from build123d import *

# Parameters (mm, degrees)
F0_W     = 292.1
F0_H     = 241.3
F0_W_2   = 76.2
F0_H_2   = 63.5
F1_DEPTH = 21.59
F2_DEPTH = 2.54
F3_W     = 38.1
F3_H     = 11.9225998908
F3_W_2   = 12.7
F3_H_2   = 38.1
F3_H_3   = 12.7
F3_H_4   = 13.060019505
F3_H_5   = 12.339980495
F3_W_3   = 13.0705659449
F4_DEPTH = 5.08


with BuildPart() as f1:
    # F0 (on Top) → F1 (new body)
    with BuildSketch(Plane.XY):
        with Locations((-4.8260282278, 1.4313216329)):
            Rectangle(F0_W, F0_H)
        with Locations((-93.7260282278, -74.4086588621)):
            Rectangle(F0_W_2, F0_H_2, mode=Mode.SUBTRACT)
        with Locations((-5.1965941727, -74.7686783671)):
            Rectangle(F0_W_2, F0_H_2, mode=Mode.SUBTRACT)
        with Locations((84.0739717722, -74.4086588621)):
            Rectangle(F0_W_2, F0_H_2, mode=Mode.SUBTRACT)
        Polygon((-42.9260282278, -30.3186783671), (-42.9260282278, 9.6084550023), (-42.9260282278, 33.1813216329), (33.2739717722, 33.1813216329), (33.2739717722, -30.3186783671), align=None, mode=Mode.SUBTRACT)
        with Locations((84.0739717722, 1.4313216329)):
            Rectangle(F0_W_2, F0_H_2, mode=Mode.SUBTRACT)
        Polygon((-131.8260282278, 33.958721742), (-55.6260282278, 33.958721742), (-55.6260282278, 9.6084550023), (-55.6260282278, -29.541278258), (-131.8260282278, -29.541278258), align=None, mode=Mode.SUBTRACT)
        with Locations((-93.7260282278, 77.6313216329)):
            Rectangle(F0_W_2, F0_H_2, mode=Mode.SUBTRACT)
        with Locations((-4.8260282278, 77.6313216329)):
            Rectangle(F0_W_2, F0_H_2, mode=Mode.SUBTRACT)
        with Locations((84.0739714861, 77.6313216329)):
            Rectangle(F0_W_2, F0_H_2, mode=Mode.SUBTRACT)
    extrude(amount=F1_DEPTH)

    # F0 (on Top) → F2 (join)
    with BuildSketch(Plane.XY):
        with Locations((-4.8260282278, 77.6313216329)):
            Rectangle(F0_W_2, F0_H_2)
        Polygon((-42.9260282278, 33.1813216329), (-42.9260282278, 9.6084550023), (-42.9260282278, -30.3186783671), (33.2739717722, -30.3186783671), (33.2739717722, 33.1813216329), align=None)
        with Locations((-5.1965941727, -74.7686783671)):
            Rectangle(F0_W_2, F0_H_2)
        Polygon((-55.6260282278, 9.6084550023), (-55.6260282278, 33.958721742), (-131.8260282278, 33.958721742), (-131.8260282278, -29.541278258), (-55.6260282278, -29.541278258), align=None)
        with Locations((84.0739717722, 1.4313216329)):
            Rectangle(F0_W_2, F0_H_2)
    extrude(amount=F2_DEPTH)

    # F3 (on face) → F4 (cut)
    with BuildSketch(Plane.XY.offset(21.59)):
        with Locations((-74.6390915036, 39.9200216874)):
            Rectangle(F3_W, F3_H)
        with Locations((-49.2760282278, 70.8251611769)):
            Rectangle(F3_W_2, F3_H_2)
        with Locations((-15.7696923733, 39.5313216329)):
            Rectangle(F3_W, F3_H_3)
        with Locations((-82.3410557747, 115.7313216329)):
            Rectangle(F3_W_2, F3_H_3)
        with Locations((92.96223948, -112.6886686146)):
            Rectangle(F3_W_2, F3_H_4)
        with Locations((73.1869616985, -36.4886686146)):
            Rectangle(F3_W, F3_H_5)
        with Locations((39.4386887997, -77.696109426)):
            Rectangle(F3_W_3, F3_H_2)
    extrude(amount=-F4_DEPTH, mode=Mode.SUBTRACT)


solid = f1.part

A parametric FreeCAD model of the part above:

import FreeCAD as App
import Part
import Sketcher
Q = App.Units.Quantity

doc = App.newDocument("Part")
body = doc.addObject("PartDesign::Body", "Body")

# Sketch on XY plane
sketch1 = body.newObject("Sketcher::SketchObject", "Sketch")
sketch1.AttachmentSupport = (doc.getObject("XY_Plane"), [""])
sketch1.MapMode = "FlatFace"
sketch1.addGeometry([
    Part.LineSegment(App.Vector(-151, 122, 0), App.Vector(-151, -119, 0)),  # 0
    Part.LineSegment(App.Vector(-151, -119, 0), App.Vector(141, -119, 0)),  # 1
    Part.LineSegment(App.Vector(141, -119, 0), App.Vector(141, 122, 0)),  # 2
    Part.LineSegment(App.Vector(141, 122, 0), App.Vector(-151, 122, 0)),  # 3
    Part.LineSegment(App.Vector(-56, -106, 0), App.Vector(-132, -106, 0)),  # 4
    Part.LineSegment(App.Vector(-132, -106, 0), App.Vector(-132, -43, 0)),  # 5
    Part.LineSegment(App.Vector(-132, -43, 0), App.Vector(-56, -43, 0)),  # 6
    Part.LineSegment(App.Vector(-56, -43, 0), App.Vector(-56, -106, 0)),  # 7
    Part.LineSegment(App.Vector(33, -107, 0), App.Vector(-43, -107, 0)),  # 8
    Part.LineSegment(App.Vector(-43, -107, 0), App.Vector(-43, -43, 0)),  # 9
    Part.LineSegment(App.Vector(-43, -43, 0), App.Vector(33, -43, 0)),  # 10
    Part.LineSegment(App.Vector(33, -43, 0), App.Vector(33, -107, 0)),  # 11
    Part.LineSegment(App.Vector(122, -106, 0), App.Vector(46, -106, 0)),  # 12
    Part.LineSegment(App.Vector(46, -106, 0), App.Vector(46, -43, 0)),  # 13
    Part.LineSegment(App.Vector(46, -43, 0), App.Vector(122, -43, 0)),  # 14
    Part.LineSegment(App.Vector(122, -43, 0), App.Vector(122, -106, 0)),  # 15
    Part.LineSegment(App.Vector(-132, -30, 0), App.Vector(-132, 34, 0)),  # 16
    Part.LineSegment(App.Vector(-132, 34, 0), App.Vector(-56, 34, 0)),  # 17
    Part.LineSegment(App.Vector(-56, 34, 0), App.Vector(-56, -30, 0)),  # 18
    Part.LineSegment(App.Vector(-56, -30, 0), App.Vector(-132, -30, 0)),  # 19
    Part.LineSegment(App.Vector(-56, 46, 0), App.Vector(-132, 46, 0)),  # 20
    Part.LineSegment(App.Vector(-132, 46, 0), App.Vector(-132, 109, 0)),  # 21
    Part.LineSegment(App.Vector(-132, 109, 0), App.Vector(-56, 109, 0)),  # 22
    Part.LineSegment(App.Vector(-56, 109, 0), App.Vector(-56, 46, 0)),  # 23
    Part.LineSegment(App.Vector(33, -30, 0), App.Vector(-43, -30, 0)),  # 24
    Part.LineSegment(App.Vector(-43, -30, 0), App.Vector(-43, 33, 0)),  # 25
    Part.LineSegment(App.Vector(-43, 33, 0), App.Vector(33, 33, 0)),  # 26
    Part.LineSegment(App.Vector(33, 33, 0), App.Vector(33, -30, 0)),  # 27
    Part.LineSegment(App.Vector(122, -30, 0), App.Vector(46, -30, 0)),  # 28
    Part.LineSegment(App.Vector(46, -30, 0), App.Vector(46, 33, 0)),  # 29
    Part.LineSegment(App.Vector(46, 33, 0), App.Vector(122, 33, 0)),  # 30
    Part.LineSegment(App.Vector(122, 33, 0), App.Vector(122, -30, 0)),  # 31
    Part.LineSegment(App.Vector(33, 46, 0), App.Vector(-43, 46, 0)),  # 32
    Part.LineSegment(App.Vector(-43, 46, 0), App.Vector(-43, 109, 0)),  # 33
    Part.LineSegment(App.Vector(-43, 109, 0), App.Vector(33, 109, 0)),  # 34
    Part.LineSegment(App.Vector(33, 109, 0), App.Vector(33, 46, 0)),  # 35
    Part.LineSegment(App.Vector(122, 46, 0), App.Vector(46, 46, 0)),  # 36
    Part.LineSegment(App.Vector(46, 46, 0), App.Vector(46, 109, 0)),  # 37
    Part.LineSegment(App.Vector(46, 109, 0), App.Vector(122, 109, 0)),  # 38
    Part.LineSegment(App.Vector(122, 109, 0), App.Vector(122, 46, 0)),  # 39
], False)
sketch1.addConstraint([
    Sketcher.Constraint("Coincident", 0, 2, 1, 1),
    Sketcher.Constraint("Coincident", 1, 2, 2, 1),
    Sketcher.Constraint("Coincident", 2, 2, 3, 1),
    Sketcher.Constraint("Coincident", 3, 2, 0, 1),
    Sketcher.Constraint("Coincident", 4, 2, 5, 1),
    Sketcher.Constraint("Coincident", 5, 2, 6, 1),
    Sketcher.Constraint("Coincident", 6, 2, 7, 1),
    Sketcher.Constraint("Coincident", 7, 2, 4, 1),
    Sketcher.Constraint("Coincident", 8, 2, 9, 1),
    Sketcher.Constraint("Coincident", 9, 2, 10, 1),
    Sketcher.Constraint("Coincident", 10, 2, 11, 1),
    Sketcher.Constraint("Coincident", 11, 2, 8, 1),
    Sketcher.Constraint("Coincident", 12, 2, 13, 1),
    Sketcher.Constraint("Coincident", 13, 2, 14, 1),
    Sketcher.Constraint("Coincident", 14, 2, 15, 1),
    Sketcher.Constraint("Coincident", 15, 2, 12, 1),
    Sketcher.Constraint("Coincident", 16, 2, 17, 1),
    Sketcher.Constraint("Coincident", 17, 2, 18, 1),
    Sketcher.Constraint("Coincident", 18, 2, 19, 1),
    Sketcher.Constraint("Coincident", 19, 2, 16, 1),
    Sketcher.Constraint("Coincident", 20, 2, 21, 1),
    Sketcher.Constraint("Coincident", 21, 2, 22, 1),
    Sketcher.Constraint("Coincident", 22, 2, 23, 1),
    Sketcher.Constraint("Coincident", 23, 2, 20, 1),
    Sketcher.Constraint("Coincident", 24, 2, 25, 1),
    Sketcher.Constraint("Coincident", 25, 2, 26, 1),
    Sketcher.Constraint("Coincident", 26, 2, 27, 1),
    Sketcher.Constraint("Coincident", 27, 2, 24, 1),
    Sketcher.Constraint("Coincident", 28, 2, 29, 1),
    Sketcher.Constraint("Coincident", 29, 2, 30, 1),
    Sketcher.Constraint("Coincident", 30, 2, 31, 1),
    Sketcher.Constraint("Coincident", 31, 2, 28, 1),
    Sketcher.Constraint("Coincident", 32, 2, 33, 1),
    Sketcher.Constraint("Coincident", 33, 2, 34, 1),
    Sketcher.Constraint("Coincident", 34, 2, 35, 1),
    Sketcher.Constraint("Coincident", 35, 2, 32, 1),
    Sketcher.Constraint("Coincident", 36, 2, 37, 1),
    Sketcher.Constraint("Coincident", 37, 2, 38, 1),
    Sketcher.Constraint("Coincident", 38, 2, 39, 1),
    Sketcher.Constraint("Coincident", 39, 2, 36, 1),
    Sketcher.Constraint("Vertical", 0),
    Sketcher.Constraint("Horizontal", 1),
    Sketcher.Constraint("Vertical", 2),
    Sketcher.Constraint("Horizontal", 3),
    Sketcher.Constraint("Horizontal", 4),
    Sketcher.Constraint("Vertical", 5),
    Sketcher.Constraint("Horizontal", 6),
    Sketcher.Constraint("Vertical", 7),
    Sketcher.Constraint("Horizontal", 8),
    Sketcher.Constraint("Vertical", 9),
    Sketcher.Constraint("Horizontal", 10),
    Sketcher.Constraint("Vertical", 11),
    Sketcher.Constraint("Horizontal", 12),
    Sketcher.Constraint("Vertical", 13),
    Sketcher.Constraint("Horizontal", 14),
    Sketcher.Constraint("Vertical", 15),
    Sketcher.Constraint("Vertical", 16),
    Sketcher.Constraint("Horizontal", 17),
    Sketcher.Constraint("Vertical", 18),
    Sketcher.Constraint("Horizontal", 19),
    Sketcher.Constraint("Horizontal", 20),
    Sketcher.Constraint("Vertical", 21),
    Sketcher.Constraint("Horizontal", 22),
    Sketcher.Constraint("Vertical", 23),
    Sketcher.Constraint("Horizontal", 24),
    Sketcher.Constraint("Vertical", 25),
    Sketcher.Constraint("Horizontal", 26),
    Sketcher.Constraint("Vertical", 27),
    Sketcher.Constraint("Horizontal", 28),
    Sketcher.Constraint("Vertical", 29),
    Sketcher.Constraint("Horizontal", 30),
    Sketcher.Constraint("Vertical", 31),
    Sketcher.Constraint("Horizontal", 32),
    Sketcher.Constraint("Vertical", 33),
    Sketcher.Constraint("Horizontal", 34),
    Sketcher.Constraint("Vertical", 35),
    Sketcher.Constraint("Horizontal", 36),
    Sketcher.Constraint("Vertical", 37),
    Sketcher.Constraint("Horizontal", 38),
    Sketcher.Constraint("Vertical", 39),
    Sketcher.Constraint("Horizontal", 7, 2, 12, 2),
    Sketcher.Constraint("Horizontal", 6, 2, 13, 2),
    Sketcher.Constraint("Horizontal", 27, 2, 28, 2),
    Sketcher.Constraint("Horizontal", 26, 2, 29, 2),
    Sketcher.Constraint("Horizontal", 23, 2, 32, 2),
    Sketcher.Constraint("Horizontal", 22, 2, 33, 2),
    Sketcher.Constraint("Horizontal", 35, 2, 36, 2),
    Sketcher.Constraint("Horizontal", 34, 2, 37, 2),
    Sketcher.Constraint("Vertical", 5, 2, 16, 2),
    Sketcher.Constraint("Vertical", 7, 2, 17, 2),
    Sketcher.Constraint("Vertical", 19, 2, 20, 2),
    Sketcher.Constraint("Vertical", 18, 2, 22, 2),
    Sketcher.Constraint("Vertical", 13, 2, 28, 2),
    Sketcher.Constraint("Vertical", 15, 2, 30, 2),
    Sketcher.Constraint("Vertical", 25, 2, 32, 2),
    Sketcher.Constraint("Vertical", 27, 2, 34, 2),
    Sketcher.Constraint("Vertical", 29, 2, 36, 2),
    Sketcher.Constraint("Vertical", 31, 2, 38, 2),
    Sketcher.Constraint("Equal", 6, 8),
    Sketcher.Constraint("Equal", 10, 12),
    Sketcher.Constraint("Equal", 22, 24),
    Sketcher.Constraint("Equal", 7, 9),
    Sketcher.Constraint("Equal", 15, 16),
    Sketcher.Constraint("Equal", 18, 21),
    Sketcher.Constraint("Equal", 23, 25),
    Sketcher.Constraint("DistanceX", 4, 2, 4, 1, Q("3 in")),
    Sketcher.Constraint("DistanceX", 1, 1, 1, 2, Q("11.5 in")),
    Sketcher.Constraint("DistanceY", 0, 2, 0, 1, Q("9.5 in")),
    Sketcher.Constraint("DistanceY", 5, 1, 5, 2, Q("2.5 in")),
    Sketcher.Constraint("DistanceY", 1, 2, 10, 2, Q("3 in")),
    Sketcher.Constraint("DistanceX", 7, 2, 12, 2, Q("4 in")),
    Sketcher.Constraint("DistanceY", 20, 2, 3, 2, Q("3 in")),
    Sketcher.Constraint("DistanceY", 8, 2, 24, 2, Q("3 in")),
    Sketcher.Constraint("DistanceX", 18, 2, 24, 2, Q("0.5 in")),
    Sketcher.Constraint("DistanceX", 0, 2, 4, 2, Q("0.75 in")),
    Sketcher.Constraint("DistanceY", 16, 2, 3, 2, 88.1226),
    Sketcher.Constraint("DistanceX", 0, 2, -1, 1, 150.876028),
    Sketcher.Constraint("DistanceY", 0, 2, -1, 1, 119.218678),
    Sketcher.Constraint("DistanceY", 4, 2, -1, 1, 106.158659),
    Sketcher.Constraint("DistanceX", 8, 2, -1, 1, 43.296594),
])
pad1 = body.newObject("PartDesign::Pad", "Pad")
pad1.Profile = sketch1
pad1.Length = Q("0.85 in")

# Sketch on XY plane
sketch2 = body.newObject("Sketcher::SketchObject", "Sketch001")
sketch2.AttachmentSupport = (doc.getObject("XY_Plane"), [""])
sketch2.MapMode = "FlatFace"
sketch2.addGeometry([
    Part.LineSegment(App.Vector(-43, 109, 0), App.Vector(-43, 46, 0)),  # 0
    Part.LineSegment(App.Vector(-43, 46, 0), App.Vector(33, 46, 0)),  # 1
    Part.LineSegment(App.Vector(33, 46, 0), App.Vector(33, 109, 0)),  # 2
    Part.LineSegment(App.Vector(33, 109, 0), App.Vector(-43, 109, 0)),  # 3
    Part.LineSegment(App.Vector(-43, 33, 0), App.Vector(-43, -30, 0)),  # 4
    Part.LineSegment(App.Vector(-43, -30, 0), App.Vector(33, -30, 0)),  # 5
    Part.LineSegment(App.Vector(33, -30, 0), App.Vector(33, 33, 0)),  # 6
    Part.LineSegment(App.Vector(33, 33, 0), App.Vector(-43, 33, 0)),  # 7
    Part.LineSegment(App.Vector(-43, -43, 0), App.Vector(-43, -107, 0)),  # 8
    Part.LineSegment(App.Vector(-43, -107, 0), App.Vector(33, -107, 0)),  # 9
    Part.LineSegment(App.Vector(33, -107, 0), App.Vector(33, -43, 0)),  # 10
    Part.LineSegment(App.Vector(33, -43, 0), App.Vector(-43, -43, 0)),  # 11
    Part.LineSegment(App.Vector(-56, 34, 0), App.Vector(-132, 34, 0)),  # 12
    Part.LineSegment(App.Vector(-132, 34, 0), App.Vector(-132, -30, 0)),  # 13
    Part.LineSegment(App.Vector(-132, -30, 0), App.Vector(-56, -30, 0)),  # 14
    Part.LineSegment(App.Vector(-56, -30, 0), App.Vector(-56, 34, 0)),  # 15
    Part.LineSegment(App.Vector(46, 33, 0), App.Vector(46, -30, 0)),  # 16
    Part.LineSegment(App.Vector(46, -30, 0), App.Vector(122, -30, 0)),  # 17
    Part.LineSegment(App.Vector(122, -30, 0), App.Vector(122, 33, 0)),  # 18
    Part.LineSegment(App.Vector(122, 33, 0), App.Vector(46, 33, 0)),  # 19
], False)
sketch2.addConstraint([
    Sketcher.Constraint("Coincident", 0, 2, 1, 1),
    Sketcher.Constraint("Coincident", 1, 2, 2, 1),
    Sketcher.Constraint("Coincident", 2, 2, 3, 1),
    Sketcher.Constraint("Coincident", 3, 2, 0, 1),
    Sketcher.Constraint("Coincident", 4, 2, 5, 1),
    Sketcher.Constraint("Coincident", 5, 2, 6, 1),
    Sketcher.Constraint("Coincident", 6, 2, 7, 1),
    Sketcher.Constraint("Coincident", 7, 2, 4, 1),
    Sketcher.Constraint("Coincident", 8, 2, 9, 1),
    Sketcher.Constraint("Coincident", 9, 2, 10, 1),
    Sketcher.Constraint("Coincident", 10, 2, 11, 1),
    Sketcher.Constraint("Coincident", 11, 2, 8, 1),
    Sketcher.Constraint("Coincident", 12, 2, 13, 1),
    Sketcher.Constraint("Coincident", 13, 2, 14, 1),
    Sketcher.Constraint("Coincident", 14, 2, 15, 1),
    Sketcher.Constraint("Coincident", 15, 2, 12, 1),
    Sketcher.Constraint("Coincident", 16, 2, 17, 1),
    Sketcher.Constraint("Coincident", 17, 2, 18, 1),
    Sketcher.Constraint("Coincident", 18, 2, 19, 1),
    Sketcher.Constraint("Coincident", 19, 2, 16, 1),
    Sketcher.Constraint("Vertical", 0),
    Sketcher.Constraint("Horizontal", 1),
    Sketcher.Constraint("Vertical", 2),
    Sketcher.Constraint("Horizontal", 3),
    Sketcher.Constraint("Vertical", 4),
    Sketcher.Constraint("Horizontal", 5),
    Sketcher.Constraint("Vertical", 6),
    Sketcher.Constraint("Horizontal", 7),
    Sketcher.Constraint("Vertical", 8),
    Sketcher.Constraint("Horizontal", 9),
    Sketcher.Constraint("Vertical", 10),
    Sketcher.Constraint("Horizontal", 11),
    Sketcher.Constraint("Horizontal", 12),
    Sketcher.Constraint("Vertical", 13),
    Sketcher.Constraint("Horizontal", 14),
    Sketcher.Constraint("Vertical", 15),
    Sketcher.Constraint("Vertical", 16),
    Sketcher.Constraint("Horizontal", 17),
    Sketcher.Constraint("Vertical", 18),
    Sketcher.Constraint("Horizontal", 19),
    Sketcher.Constraint("Horizontal", 5, 2, 16, 2),
    Sketcher.Constraint("Horizontal", 7, 2, 18, 2),
    Sketcher.Constraint("Vertical", 3, 2, 4, 2),
    Sketcher.Constraint("Vertical", 2, 2, 5, 2),
    Sketcher.Constraint("Equal", 7, 9),
    Sketcher.Constraint("Equal", 11, 12),
    Sketcher.Constraint("Equal", 14, 17),
    Sketcher.Constraint("Equal", 2, 4),
    Sketcher.Constraint("Equal", 6, 8),
    Sketcher.Constraint("Equal", 10, 13),
    Sketcher.Constraint("DistanceX", 1, 1, 1, 2, Q("3 in")),
    Sketcher.Constraint("DistanceY", 0, 2, 0, 1, Q("2.5 in")),
    Sketcher.Constraint("DistanceY", 4, 2, 0, 2, Q("3 in")),
    Sketcher.Constraint("DistanceY", 8, 2, 4, 2, Q("3 in")),
    Sketcher.Constraint("DistanceX", 12, 2, 7, 2, Q("3.5 in")),
    Sketcher.Constraint("DistanceX", 5, 2, 16, 2, Q("0.5 in")),
    Sketcher.Constraint("DistanceY", 7, 2, 12, 2, 0.7774),
    Sketcher.Constraint("DistanceX", 0, 2, -1, 1, 42.926028),
    Sketcher.Constraint("DistanceY", -1, 1, 0, 2, 45.881322),
    Sketcher.Constraint("DistanceX", 8, 2, -1, 1, 43.296594),
])
pad2 = body.newObject("PartDesign::Pad", "Pad001")
pad2.Profile = sketch2
pad2.Length = Q("0.1 in")

# Sketch on XY plane
sketch3 = body.newObject("Sketcher::SketchObject", "Sketch002")
sketch3.AttachmentSupport = (doc.getObject("XY_Plane"), [""])
sketch3.MapMode = "FlatFace"
sketch3.AttachmentOffset = App.Placement(App.Vector(0, 0, 0.85 * 25.4), App.Rotation())
sketch3.addGeometry([
    Part.LineSegment(App.Vector(-94, 46, 0), App.Vector(-94, 34, 0)),  # 0
    Part.LineSegment(App.Vector(-94, 34, 0), App.Vector(-56, 34, 0)),  # 1
    Part.LineSegment(App.Vector(-56, 34, 0), App.Vector(-56, 46, 0)),  # 2
    Part.LineSegment(App.Vector(-56, 46, 0), App.Vector(-94, 46, 0)),  # 3
    Part.LineSegment(App.Vector(-56, 90, 0), App.Vector(-56, 52, 0)),  # 4
    Part.LineSegment(App.Vector(-56, 52, 0), App.Vector(-43, 52, 0)),  # 5
    Part.LineSegment(App.Vector(-43, 52, 0), App.Vector(-43, 90, 0)),  # 6
    Part.LineSegment(App.Vector(-43, 90, 0), App.Vector(-56, 90, 0)),  # 7
    Part.LineSegment(App.Vector(-35, 46, 0), App.Vector(-35, 33, 0)),  # 8
    Part.LineSegment(App.Vector(-35, 33, 0), App.Vector(3, 33, 0)),  # 9
    Part.LineSegment(App.Vector(3, 33, 0), App.Vector(3, 46, 0)),  # 10
    Part.LineSegment(App.Vector(3, 46, 0), App.Vector(-35, 46, 0)),  # 11
    Part.LineSegment(App.Vector(-89, 122, 0), App.Vector(-89, 109, 0)),  # 12
    Part.LineSegment(App.Vector(-89, 109, 0), App.Vector(-76, 109, 0)),  # 13
    Part.LineSegment(App.Vector(-76, 109, 0), App.Vector(-76, 122, 0)),  # 14
    Part.LineSegment(App.Vector(-76, 122, 0), App.Vector(-89, 122, 0)),  # 15
    Part.LineSegment(App.Vector(87, -106, 0), App.Vector(87, -119, 0)),  # 16
    Part.LineSegment(App.Vector(87, -119, 0), App.Vector(99, -119, 0)),  # 17
    Part.LineSegment(App.Vector(99, -119, 0), App.Vector(99, -106, 0)),  # 18
    Part.LineSegment(App.Vector(99, -106, 0), App.Vector(87, -106, 0)),  # 19
    Part.LineSegment(App.Vector(54, -30, 0), App.Vector(54, -43, 0)),  # 20
    Part.LineSegment(App.Vector(54, -43, 0), App.Vector(92, -43, 0)),  # 21
    Part.LineSegment(App.Vector(92, -43, 0), App.Vector(92, -30, 0)),  # 22
    Part.LineSegment(App.Vector(92, -30, 0), App.Vector(54, -30, 0)),  # 23
    Part.LineSegment(App.Vector(33, -59, 0), App.Vector(33, -97, 0)),  # 24
    Part.LineSegment(App.Vector(33, -97, 0), App.Vector(46, -97, 0)),  # 25
    Part.LineSegment(App.Vector(46, -97, 0), App.Vector(46, -59, 0)),  # 26
    Part.LineSegment(App.Vector(46, -59, 0), App.Vector(33, -59, 0)),  # 27
], False)
sketch3.addConstraint([
    Sketcher.Constraint("Coincident", 0, 2, 1, 1),
    Sketcher.Constraint("Coincident", 1, 2, 2, 1),
    Sketcher.Constraint("Coincident", 2, 2, 3, 1),
    Sketcher.Constraint("Coincident", 3, 2, 0, 1),
    Sketcher.Constraint("Coincident", 4, 2, 5, 1),
    Sketcher.Constraint("Coincident", 5, 2, 6, 1),
    Sketcher.Constraint("Coincident", 6, 2, 7, 1),
    Sketcher.Constraint("Coincident", 7, 2, 4, 1),
    Sketcher.Constraint("Coincident", 8, 2, 9, 1),
    Sketcher.Constraint("Coincident", 9, 2, 10, 1),
    Sketcher.Constraint("Coincident", 10, 2, 11, 1),
    Sketcher.Constraint("Coincident", 11, 2, 8, 1),
    Sketcher.Constraint("Coincident", 12, 2, 13, 1),
    Sketcher.Constraint("Coincident", 13, 2, 14, 1),
    Sketcher.Constraint("Coincident", 14, 2, 15, 1),
    Sketcher.Constraint("Coincident", 15, 2, 12, 1),
    Sketcher.Constraint("Coincident", 16, 2, 17, 1),
    Sketcher.Constraint("Coincident", 17, 2, 18, 1),
    Sketcher.Constraint("Coincident", 18, 2, 19, 1),
    Sketcher.Constraint("Coincident", 19, 2, 16, 1),
    Sketcher.Constraint("Coincident", 20, 2, 21, 1),
    Sketcher.Constraint("Coincident", 21, 2, 22, 1),
    Sketcher.Constraint("Coincident", 22, 2, 23, 1),
    Sketcher.Constraint("Coincident", 23, 2, 20, 1),
    Sketcher.Constraint("Coincident", 24, 2, 25, 1),
    Sketcher.Constraint("Coincident", 25, 2, 26, 1),
    Sketcher.Constraint("Coincident", 26, 2, 27, 1),
    Sketcher.Constraint("Coincident", 27, 2, 24, 1),
    Sketcher.Constraint("Vertical", 0),
    Sketcher.Constraint("Horizontal", 1),
    Sketcher.Constraint("Vertical", 2),
    Sketcher.Constraint("Horizontal", 3),
    Sketcher.Constraint("Vertical", 4),
    Sketcher.Constraint("Horizontal", 5),
    Sketcher.Constraint("Vertical", 6),
    Sketcher.Constraint("Horizontal", 7),
    Sketcher.Constraint("Vertical", 8),
    Sketcher.Constraint("Horizontal", 9),
    Sketcher.Constraint("Vertical", 10),
    Sketcher.Constraint("Horizontal", 11),
    Sketcher.Constraint("Vertical", 12),
    Sketcher.Constraint("Horizontal", 13),
    Sketcher.Constraint("Vertical", 14),
    Sketcher.Constraint("Horizontal", 15),
    Sketcher.Constraint("Vertical", 16),
    Sketcher.Constraint("Horizontal", 17),
    Sketcher.Constraint("Vertical", 18),
    Sketcher.Constraint("Horizontal", 19),
    Sketcher.Constraint("Vertical", 20),
    Sketcher.Constraint("Horizontal", 21),
    Sketcher.Constraint("Vertical", 22),
    Sketcher.Constraint("Horizontal", 23),
    Sketcher.Constraint("Vertical", 24),
    Sketcher.Constraint("Horizontal", 25),
    Sketcher.Constraint("Vertical", 26),
    Sketcher.Constraint("Horizontal", 27),
    Sketcher.Constraint("Horizontal", 3, 2, 10, 2),
    Sketcher.Constraint("Equal", 3, 9),
    Sketcher.Constraint("Equal", 7, 13),
    Sketcher.Constraint("Equal", 15, 17),
    Sketcher.Constraint("Equal", 11, 21),
    Sketcher.Constraint("Equal", 23, 4),
    Sketcher.Constraint("Equal", 19, 8),
    Sketcher.Constraint("Equal", 10, 12),
    Sketcher.Constraint("Equal", 6, 24),
    Sketcher.Constraint("DistanceX", 1, 1, 1, 2, Q("1.5 in")),
    Sketcher.Constraint("DistanceX", 5, 1, 5, 2, Q("0.5 in")),
    Sketcher.Constraint("DistanceY", 16, 2, 9, 2, Q("6 in")),
    Sketcher.Constraint("DistanceY", 3, 2, 12, 2, Q("2.5 in")),
    Sketcher.Constraint("DistanceY", 19, 2, 20, 2, Q("2.5 in")),
    Sketcher.Constraint("DistanceY", 16, 2, 22, 2, Q("3.5 in")),
    Sketcher.Constraint("DistanceY", 0, 2, 0, 1, 11.9226),
    Sketcher.Constraint("DistanceY", 16, 2, 16, 1, 13.06002),
    Sketcher.Constraint("DistanceX", 1, 2, 8, 2, 20.769399),
    Sketcher.Constraint("DistanceX", 25, 1, 25, 2, 13.070566),
    Sketcher.Constraint("DistanceX", 0, 2, -1, 1, 93.689092),
    Sketcher.Constraint("DistanceY", -1, 1, 0, 2, 33.958722),
    Sketcher.Constraint("DistanceX", 4, 2, -1, 1, 55.626028),
    Sketcher.Constraint("DistanceY", -1, 1, 4, 2, 51.775161),
    Sketcher.Constraint("DistanceX", -1, 1, 16, 2, 86.612239),
    Sketcher.Constraint("DistanceX", -1, 1, 20, 2, 54.136962),
    Sketcher.Constraint("DistanceY", 24, 2, -1, 1, 96.746109),
    Sketcher.Constraint("DistanceX", -1, 1, 25, 2, 45.973972),
    Sketcher.Constraint("DistanceX", 12, 2, -1, 1, 88.691056),
])
pocket1 = body.newObject("PartDesign::Pocket", "Pocket")
pocket1.Profile = sketch3
pocket1.Length = Q("0.2 in")

doc.recompute()
